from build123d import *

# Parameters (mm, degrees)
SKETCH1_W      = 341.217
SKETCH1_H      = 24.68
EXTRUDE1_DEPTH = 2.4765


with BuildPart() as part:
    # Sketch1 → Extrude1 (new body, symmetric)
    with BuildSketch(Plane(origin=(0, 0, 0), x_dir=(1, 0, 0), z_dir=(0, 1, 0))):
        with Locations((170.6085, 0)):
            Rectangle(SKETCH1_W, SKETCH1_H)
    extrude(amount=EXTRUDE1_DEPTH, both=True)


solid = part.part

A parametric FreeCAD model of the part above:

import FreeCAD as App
import Part
import Sketcher


def add_polygon(sketch, points):
    """Adds a closed chain of lines whose ends are joined by coincident constraints."""
    first, n = sketch.GeometryCount, len(points)
    for a, b in zip(points, points[1:] + points[:1]):
        sketch.addGeometry(Part.LineSegment(App.Vector(*a, 0), App.Vector(*b, 0)), False)
    for i in range(n):
        sketch.addConstraint(Sketcher.Constraint("Coincident", first + i, 2, first + (i + 1) % n, 1))

doc = App.newDocument("Part")
body = doc.addObject("PartDesign::Body", "Body")

# Sketch on XZ plane
sketch1 = body.newObject("Sketcher::SketchObject", "Sketch")
sketch1.AttachmentSupport = (doc.getObject("XZ_Plane"), [""])
sketch1.MapMode = "FlatFace"
add_polygon(sketch1, [(0, -12), (0, 12), (341, 12), (341, -12)])  # lines 0-3
sketch1.addConstraint([
    Sketcher.Constraint("Vertical", 0),
    Sketcher.Constraint("Horizontal", 1),
    Sketcher.Constraint("Vertical", 2),
    Sketcher.Constraint("Horizontal", 3),
    Sketcher.Constraint("Symmetric", 0, 2, 3, 2, -1, 1),
    Sketcher.Constraint("DistanceY", 0, 1, 0, 2, 24.68),
    Sketcher.Constraint("DistanceX", 1, 1, 1, 2, 341.217),
])
pad1 = body.newObject("PartDesign::Pad", "Pad")
pad1.Profile = sketch1
pad1.Length = 4.953
pad1.Midplane = True

doc.recompute()
